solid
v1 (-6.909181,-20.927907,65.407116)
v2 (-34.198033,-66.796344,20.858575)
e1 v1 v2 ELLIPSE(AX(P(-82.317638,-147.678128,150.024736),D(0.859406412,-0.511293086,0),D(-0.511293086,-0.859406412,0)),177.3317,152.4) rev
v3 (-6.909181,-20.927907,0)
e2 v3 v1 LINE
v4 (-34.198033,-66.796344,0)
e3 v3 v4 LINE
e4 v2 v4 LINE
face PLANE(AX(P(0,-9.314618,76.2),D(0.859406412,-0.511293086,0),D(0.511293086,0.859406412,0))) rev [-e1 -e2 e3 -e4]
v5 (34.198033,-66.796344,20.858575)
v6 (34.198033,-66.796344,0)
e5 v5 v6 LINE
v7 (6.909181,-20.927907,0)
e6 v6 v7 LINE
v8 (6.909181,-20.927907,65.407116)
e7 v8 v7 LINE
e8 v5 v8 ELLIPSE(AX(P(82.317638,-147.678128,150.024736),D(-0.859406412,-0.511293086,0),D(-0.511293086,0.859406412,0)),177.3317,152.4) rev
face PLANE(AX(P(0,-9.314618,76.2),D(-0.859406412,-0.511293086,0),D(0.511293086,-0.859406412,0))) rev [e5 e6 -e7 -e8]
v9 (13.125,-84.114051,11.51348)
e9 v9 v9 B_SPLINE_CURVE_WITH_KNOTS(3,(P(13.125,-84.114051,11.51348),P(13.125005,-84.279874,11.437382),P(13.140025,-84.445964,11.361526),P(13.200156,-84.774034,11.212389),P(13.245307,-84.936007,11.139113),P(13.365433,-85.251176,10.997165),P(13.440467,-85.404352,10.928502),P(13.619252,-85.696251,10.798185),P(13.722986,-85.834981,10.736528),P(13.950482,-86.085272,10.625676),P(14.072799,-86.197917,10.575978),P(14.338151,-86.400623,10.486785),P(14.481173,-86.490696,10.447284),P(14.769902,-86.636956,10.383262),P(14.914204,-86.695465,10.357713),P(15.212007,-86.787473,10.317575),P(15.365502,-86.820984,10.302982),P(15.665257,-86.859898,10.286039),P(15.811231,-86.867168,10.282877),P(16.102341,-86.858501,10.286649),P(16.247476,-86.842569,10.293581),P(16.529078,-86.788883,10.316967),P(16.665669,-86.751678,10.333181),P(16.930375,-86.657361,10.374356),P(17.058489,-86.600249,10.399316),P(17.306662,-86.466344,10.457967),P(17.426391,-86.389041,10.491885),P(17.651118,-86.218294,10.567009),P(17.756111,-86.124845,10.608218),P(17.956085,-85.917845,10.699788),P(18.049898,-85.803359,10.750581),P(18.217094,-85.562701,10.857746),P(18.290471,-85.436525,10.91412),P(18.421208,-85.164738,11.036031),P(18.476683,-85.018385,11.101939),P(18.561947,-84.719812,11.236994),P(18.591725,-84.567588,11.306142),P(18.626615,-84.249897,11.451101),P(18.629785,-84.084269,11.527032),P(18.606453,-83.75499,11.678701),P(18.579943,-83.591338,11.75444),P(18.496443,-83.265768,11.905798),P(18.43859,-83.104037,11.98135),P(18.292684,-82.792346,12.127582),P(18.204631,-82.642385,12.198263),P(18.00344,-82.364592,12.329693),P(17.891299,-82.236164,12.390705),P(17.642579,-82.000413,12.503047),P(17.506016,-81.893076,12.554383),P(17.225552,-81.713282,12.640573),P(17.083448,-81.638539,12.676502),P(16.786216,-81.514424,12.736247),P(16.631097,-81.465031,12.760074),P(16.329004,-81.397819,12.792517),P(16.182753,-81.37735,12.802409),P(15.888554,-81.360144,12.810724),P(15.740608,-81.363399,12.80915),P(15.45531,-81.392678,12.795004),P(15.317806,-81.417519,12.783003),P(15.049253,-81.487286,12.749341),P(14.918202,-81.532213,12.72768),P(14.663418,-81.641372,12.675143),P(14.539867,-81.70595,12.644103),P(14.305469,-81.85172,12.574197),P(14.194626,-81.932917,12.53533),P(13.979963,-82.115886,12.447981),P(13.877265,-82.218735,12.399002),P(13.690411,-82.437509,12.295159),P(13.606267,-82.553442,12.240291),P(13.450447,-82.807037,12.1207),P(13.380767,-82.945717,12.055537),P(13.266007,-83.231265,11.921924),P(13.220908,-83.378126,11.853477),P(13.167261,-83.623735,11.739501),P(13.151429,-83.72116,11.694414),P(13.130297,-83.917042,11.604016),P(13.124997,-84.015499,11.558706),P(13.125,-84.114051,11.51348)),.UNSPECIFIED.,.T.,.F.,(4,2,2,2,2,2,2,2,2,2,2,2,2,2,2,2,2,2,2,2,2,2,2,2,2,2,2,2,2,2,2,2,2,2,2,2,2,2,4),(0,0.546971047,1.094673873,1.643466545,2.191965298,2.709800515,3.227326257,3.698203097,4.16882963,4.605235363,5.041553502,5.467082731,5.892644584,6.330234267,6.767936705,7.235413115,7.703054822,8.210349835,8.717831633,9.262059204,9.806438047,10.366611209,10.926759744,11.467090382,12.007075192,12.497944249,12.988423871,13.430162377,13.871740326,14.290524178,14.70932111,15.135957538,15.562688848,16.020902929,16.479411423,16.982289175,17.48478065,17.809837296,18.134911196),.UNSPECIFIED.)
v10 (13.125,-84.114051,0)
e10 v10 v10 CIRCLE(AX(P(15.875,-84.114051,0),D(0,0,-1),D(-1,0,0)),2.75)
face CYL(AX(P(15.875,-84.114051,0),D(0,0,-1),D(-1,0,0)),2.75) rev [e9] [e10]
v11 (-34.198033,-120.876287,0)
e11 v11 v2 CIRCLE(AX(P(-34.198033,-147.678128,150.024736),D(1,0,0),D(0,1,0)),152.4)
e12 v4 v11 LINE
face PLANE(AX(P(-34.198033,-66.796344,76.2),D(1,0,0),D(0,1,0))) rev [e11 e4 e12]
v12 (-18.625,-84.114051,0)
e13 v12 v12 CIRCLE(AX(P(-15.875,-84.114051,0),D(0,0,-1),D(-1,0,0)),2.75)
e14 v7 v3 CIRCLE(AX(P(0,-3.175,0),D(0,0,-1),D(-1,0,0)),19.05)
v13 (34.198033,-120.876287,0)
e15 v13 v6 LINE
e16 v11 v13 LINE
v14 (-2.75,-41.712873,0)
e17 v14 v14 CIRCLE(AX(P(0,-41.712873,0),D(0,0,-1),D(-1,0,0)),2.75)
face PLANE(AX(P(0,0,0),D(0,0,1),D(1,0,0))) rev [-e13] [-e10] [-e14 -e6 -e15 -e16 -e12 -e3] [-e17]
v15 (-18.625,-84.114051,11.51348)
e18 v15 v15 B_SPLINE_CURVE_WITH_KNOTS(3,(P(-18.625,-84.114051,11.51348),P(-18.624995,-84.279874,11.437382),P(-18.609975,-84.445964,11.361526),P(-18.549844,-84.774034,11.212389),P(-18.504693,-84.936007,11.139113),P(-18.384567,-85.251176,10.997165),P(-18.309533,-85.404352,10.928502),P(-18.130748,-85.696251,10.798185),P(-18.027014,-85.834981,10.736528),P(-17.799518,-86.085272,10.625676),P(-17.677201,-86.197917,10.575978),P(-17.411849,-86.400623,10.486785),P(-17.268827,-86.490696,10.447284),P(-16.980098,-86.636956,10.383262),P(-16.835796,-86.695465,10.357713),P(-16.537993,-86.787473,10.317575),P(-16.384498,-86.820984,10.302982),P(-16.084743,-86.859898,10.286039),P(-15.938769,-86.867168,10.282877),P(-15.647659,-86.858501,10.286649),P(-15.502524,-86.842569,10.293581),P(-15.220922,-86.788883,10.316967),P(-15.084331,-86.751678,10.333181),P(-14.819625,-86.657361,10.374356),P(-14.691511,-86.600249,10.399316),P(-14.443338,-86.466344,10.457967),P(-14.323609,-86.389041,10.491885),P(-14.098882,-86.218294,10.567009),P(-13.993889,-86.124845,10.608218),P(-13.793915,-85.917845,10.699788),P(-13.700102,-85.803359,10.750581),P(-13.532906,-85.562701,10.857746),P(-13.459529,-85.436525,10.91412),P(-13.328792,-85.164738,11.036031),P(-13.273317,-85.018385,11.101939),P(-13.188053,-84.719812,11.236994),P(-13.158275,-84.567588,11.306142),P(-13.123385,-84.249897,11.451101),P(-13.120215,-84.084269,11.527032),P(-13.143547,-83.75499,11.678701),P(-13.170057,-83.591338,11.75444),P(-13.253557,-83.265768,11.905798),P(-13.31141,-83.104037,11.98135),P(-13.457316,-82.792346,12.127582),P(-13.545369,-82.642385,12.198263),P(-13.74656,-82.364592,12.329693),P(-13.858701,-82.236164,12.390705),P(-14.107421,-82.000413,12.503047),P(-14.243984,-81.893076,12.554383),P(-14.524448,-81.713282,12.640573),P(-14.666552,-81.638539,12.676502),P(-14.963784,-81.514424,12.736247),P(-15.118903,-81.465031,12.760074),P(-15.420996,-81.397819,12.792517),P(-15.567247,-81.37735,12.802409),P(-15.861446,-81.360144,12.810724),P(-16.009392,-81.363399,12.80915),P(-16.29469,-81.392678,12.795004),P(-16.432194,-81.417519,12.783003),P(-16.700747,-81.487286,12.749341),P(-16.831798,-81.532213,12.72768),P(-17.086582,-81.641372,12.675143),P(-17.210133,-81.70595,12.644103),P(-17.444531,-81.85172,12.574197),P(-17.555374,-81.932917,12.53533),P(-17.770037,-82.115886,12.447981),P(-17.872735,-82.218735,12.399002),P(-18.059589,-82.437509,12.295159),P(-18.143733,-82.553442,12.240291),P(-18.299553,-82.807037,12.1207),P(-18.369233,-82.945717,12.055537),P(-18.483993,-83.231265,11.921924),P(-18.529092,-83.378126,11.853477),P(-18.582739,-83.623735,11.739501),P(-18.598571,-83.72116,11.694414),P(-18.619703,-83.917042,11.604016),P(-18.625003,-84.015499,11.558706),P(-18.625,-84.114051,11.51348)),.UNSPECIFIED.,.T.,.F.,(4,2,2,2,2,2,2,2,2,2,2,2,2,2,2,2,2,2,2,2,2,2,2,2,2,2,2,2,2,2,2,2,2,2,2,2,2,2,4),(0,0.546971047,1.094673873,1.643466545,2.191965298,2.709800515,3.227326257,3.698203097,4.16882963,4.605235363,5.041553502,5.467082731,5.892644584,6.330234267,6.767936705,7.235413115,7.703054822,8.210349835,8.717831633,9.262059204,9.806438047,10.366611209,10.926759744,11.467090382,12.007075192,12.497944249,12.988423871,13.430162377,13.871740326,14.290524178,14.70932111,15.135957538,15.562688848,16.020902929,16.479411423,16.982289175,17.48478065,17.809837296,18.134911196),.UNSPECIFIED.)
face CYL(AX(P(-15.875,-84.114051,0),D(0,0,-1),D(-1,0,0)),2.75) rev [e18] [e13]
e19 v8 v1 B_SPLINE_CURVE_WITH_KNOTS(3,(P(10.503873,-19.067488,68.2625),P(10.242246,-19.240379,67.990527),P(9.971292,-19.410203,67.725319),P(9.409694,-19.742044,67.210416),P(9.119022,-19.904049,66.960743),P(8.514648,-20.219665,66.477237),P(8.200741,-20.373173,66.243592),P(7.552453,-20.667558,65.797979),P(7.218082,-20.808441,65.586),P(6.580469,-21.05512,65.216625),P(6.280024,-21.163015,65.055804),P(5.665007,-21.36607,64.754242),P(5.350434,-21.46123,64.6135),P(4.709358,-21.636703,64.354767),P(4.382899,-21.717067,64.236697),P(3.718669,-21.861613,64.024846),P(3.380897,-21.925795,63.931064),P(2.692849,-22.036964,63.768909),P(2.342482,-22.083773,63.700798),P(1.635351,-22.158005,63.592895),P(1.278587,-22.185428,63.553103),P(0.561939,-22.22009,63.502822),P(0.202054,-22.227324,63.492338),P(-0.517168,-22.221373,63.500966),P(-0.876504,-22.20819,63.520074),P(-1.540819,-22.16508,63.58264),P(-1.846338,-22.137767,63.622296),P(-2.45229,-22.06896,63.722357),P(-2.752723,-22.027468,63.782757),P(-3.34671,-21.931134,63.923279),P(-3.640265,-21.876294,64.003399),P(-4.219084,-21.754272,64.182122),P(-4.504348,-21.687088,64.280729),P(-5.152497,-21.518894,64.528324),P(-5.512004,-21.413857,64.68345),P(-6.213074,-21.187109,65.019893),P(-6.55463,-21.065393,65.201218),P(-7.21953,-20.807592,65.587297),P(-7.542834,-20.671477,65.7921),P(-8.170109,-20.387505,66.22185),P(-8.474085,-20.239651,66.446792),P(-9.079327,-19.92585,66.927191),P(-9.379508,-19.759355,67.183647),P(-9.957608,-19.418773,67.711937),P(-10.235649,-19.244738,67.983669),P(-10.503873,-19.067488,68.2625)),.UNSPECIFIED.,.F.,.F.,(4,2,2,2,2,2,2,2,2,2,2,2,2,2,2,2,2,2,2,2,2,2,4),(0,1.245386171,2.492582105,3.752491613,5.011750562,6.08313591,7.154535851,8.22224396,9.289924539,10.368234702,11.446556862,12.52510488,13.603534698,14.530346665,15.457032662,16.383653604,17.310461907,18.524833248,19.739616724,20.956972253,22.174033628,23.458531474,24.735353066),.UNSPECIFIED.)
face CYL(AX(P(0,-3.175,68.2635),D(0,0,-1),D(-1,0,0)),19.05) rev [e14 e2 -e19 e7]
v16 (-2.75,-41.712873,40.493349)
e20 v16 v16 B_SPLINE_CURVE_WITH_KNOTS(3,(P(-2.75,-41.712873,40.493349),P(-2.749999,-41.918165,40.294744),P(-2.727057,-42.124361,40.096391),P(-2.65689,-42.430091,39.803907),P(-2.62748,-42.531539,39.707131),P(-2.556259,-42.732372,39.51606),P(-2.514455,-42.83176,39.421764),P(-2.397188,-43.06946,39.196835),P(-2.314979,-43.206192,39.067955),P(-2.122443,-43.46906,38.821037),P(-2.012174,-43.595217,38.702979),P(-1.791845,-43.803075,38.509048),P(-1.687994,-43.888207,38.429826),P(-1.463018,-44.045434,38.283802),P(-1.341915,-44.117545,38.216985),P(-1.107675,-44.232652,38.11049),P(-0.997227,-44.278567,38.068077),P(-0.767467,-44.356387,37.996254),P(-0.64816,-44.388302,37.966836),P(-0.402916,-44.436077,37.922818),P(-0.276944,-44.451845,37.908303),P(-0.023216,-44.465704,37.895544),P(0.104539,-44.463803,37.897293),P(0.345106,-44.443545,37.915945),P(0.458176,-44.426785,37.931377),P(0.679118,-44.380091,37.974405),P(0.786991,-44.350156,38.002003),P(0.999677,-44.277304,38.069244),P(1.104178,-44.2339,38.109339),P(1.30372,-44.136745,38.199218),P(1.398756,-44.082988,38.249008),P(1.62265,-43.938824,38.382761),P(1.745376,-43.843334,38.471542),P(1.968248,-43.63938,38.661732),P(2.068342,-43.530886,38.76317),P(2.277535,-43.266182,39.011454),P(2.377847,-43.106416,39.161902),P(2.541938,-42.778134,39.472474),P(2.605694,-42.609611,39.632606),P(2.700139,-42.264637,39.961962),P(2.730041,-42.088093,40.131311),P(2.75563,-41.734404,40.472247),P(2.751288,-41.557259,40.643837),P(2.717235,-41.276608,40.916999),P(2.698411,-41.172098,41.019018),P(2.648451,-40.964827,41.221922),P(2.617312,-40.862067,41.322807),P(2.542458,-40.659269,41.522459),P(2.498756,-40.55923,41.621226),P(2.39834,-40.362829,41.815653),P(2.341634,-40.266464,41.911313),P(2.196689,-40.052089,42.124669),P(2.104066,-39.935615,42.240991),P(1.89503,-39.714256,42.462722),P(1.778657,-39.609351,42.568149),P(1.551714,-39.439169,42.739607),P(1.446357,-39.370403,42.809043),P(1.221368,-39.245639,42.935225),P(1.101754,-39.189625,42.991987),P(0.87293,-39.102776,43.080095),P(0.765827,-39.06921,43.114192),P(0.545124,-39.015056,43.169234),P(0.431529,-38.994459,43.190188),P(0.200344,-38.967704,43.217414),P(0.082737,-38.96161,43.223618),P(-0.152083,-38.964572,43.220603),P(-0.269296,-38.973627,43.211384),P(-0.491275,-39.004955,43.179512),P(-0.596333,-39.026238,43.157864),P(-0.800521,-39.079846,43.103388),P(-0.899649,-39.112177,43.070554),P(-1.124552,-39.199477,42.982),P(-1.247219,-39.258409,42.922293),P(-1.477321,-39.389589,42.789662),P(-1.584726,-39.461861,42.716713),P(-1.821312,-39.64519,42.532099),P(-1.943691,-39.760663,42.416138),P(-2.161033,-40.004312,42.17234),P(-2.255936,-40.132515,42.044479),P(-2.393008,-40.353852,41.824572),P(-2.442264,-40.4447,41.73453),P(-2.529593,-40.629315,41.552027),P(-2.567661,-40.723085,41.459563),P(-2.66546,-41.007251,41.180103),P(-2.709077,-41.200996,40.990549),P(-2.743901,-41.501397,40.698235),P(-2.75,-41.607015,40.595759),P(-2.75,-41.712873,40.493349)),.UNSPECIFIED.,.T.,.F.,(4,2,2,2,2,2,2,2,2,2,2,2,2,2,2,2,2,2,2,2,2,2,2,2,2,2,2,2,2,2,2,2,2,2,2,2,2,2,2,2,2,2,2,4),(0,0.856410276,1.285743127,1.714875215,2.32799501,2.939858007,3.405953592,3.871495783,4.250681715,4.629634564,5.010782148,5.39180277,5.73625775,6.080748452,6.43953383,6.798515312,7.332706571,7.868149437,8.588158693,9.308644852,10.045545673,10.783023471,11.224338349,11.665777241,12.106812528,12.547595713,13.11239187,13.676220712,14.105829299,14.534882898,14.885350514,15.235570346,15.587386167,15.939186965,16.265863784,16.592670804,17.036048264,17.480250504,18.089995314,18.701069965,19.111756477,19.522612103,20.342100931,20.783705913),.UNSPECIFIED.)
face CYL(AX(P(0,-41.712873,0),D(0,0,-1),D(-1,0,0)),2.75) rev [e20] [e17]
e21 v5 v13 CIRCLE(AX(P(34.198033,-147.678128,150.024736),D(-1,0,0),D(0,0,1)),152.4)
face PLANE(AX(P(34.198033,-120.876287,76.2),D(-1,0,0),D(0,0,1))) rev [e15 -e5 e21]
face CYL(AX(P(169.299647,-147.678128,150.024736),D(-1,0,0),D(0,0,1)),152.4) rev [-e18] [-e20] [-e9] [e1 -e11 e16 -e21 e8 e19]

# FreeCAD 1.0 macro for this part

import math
import FreeCAD as App
import Part
import Sketcher

V = App.Vector
Q = App.Units.Quantity

doc = App.newDocument("Part")
body = doc.addObject("PartDesign::Body", "Body")

sketch1 = body.newObject("Sketcher::SketchObject", "Sketch")
sketch1.AttachmentSupport = (doc.getObject("XY_Plane"), [""])
sketch1.MapMode = "FlatFace"
sketch1.addGeometry([
    Part.LineSegment(V(34, -121, 0), V(34, -67, 0)),
    Part.LineSegment(V(34, -67, 0), V(0, -9, 0)),
    Part.LineSegment(V(0, -9, 0), V(-34, -67, 0)),
    Part.LineSegment(V(-34, -67, 0), V(-34, -121, 0)),
    Part.LineSegment(V(-34, -121, 0), V(34, -121, 0)),
], False)
sketch1.addConstraint([
    Sketcher.Constraint("Coincident", 0, 2, 1, 1),
    Sketcher.Constraint("Coincident", 1, 2, 2, 1),
    Sketcher.Constraint("Coincident", 2, 2, 3, 1),
    Sketcher.Constraint("Coincident", 3, 2, 4, 1),
    Sketcher.Constraint("Coincident", 4, 2, 0, 1),
    Sketcher.Constraint("Vertical", 0),
    Sketcher.Constraint("Vertical", 3),
    Sketcher.Constraint("Horizontal", 4),
    Sketcher.Constraint("Symmetric", 0, 2, 2, 2, -2),
    Sketcher.Constraint("PointOnObject", 1, 2, -2),
    Sketcher.Constraint("Angle", 1, Q("120.75 deg")),
    Sketcher.Constraint("Distance", 1, Q("66.885382 mm")),
    Sketcher.Constraint("DistanceY", 0, 1, 0, 2, Q("54.079943 mm")),
    Sketcher.Constraint("DistanceY", 1, 2, -1, 1, Q("9.314618 mm")),
])
pad1 = body.newObject("PartDesign::Pad", "Pad")
pad1.Profile = sketch1
pad1.Length = Q("3 in")

sketch2 = body.newObject("Sketcher::SketchObject", "Sketch001")
sketch2.AttachmentSupport = (doc.getObject("YZ_Plane"), [""])
sketch2.MapMode = "FlatFace"
sketch2.AttachmentOffset = App.Placement(V(0, 0, -34.198033), App.Rotation())
sketch2.addGeometry([
    Part.LineSegment(V(-121, 76, 0), V(-121, 0, 0)),
    Part.ArcOfCircle(Part.Circle(V(-148, 150, 0), V(0, 0, 1), 152), math.radians(-80), math.radians(-32)),
    Part.LineSegment(V(-19, 68, 0), V(-9, 68, 0)),
    Part.LineSegment(V(-9, 68, 0), V(-9, 76, 0)),
    Part.LineSegment(V(-9, 76, 0), V(-121, 76, 0)),
], False)
sketch2.addConstraint([
    Sketcher.Constraint("Coincident", 0, 2, 1, 1),
    Sketcher.Constraint("Coincident", 1, 2, 2, 1),
    Sketcher.Constraint("Coincident", 2, 2, 3, 1),
    Sketcher.Constraint("Coincident", 3, 2, 4, 1),
    Sketcher.Constraint("Coincident", 4, 2, 0, 1),
    Sketcher.Constraint("Vertical", 0),
    Sketcher.Constraint("Horizontal", 2),
    Sketcher.Constraint("Vertical", 3),
    Sketcher.Constraint("Horizontal", 4),
    Sketcher.Constraint("PointOnObject", 0, 2, -1),
    Sketcher.Constraint("Radius", 1, Q("6 in")),
    Sketcher.Constraint("DistanceY", 0, 2, 0, 1, Q("3 in")),
    Sketcher.Constraint("DistanceY", 3, 1, 3, 2, Q("0.3125 in")),
    Sketcher.Constraint("DistanceX", 2, 1, 2, 2, Q("9.752869 mm")),
    Sketcher.Constraint("DistanceX", 4, 2, 4, 1, Q("111.561669 mm")),
    Sketcher.Constraint("DistanceX", 2, 2, -1, 1, Q("9.314618 mm")),
])
pocket1 = body.newObject("PartDesign::Pocket", "Pocket")
pocket1.Profile = sketch2
pocket1.Length = 68.396066
pocket1.Reversed = True

sketch3 = body.newObject("Sketcher::SketchObject", "Sketch002")
sketch3.AttachmentSupport = (doc.getObject("XY_Plane"), [""])
sketch3.MapMode = "FlatFace"
sketch3.addGeometry([
    Part.Circle(V(15.9, -84.1, 0), V(0, 0, 1), 2.8),
    Part.Circle(V(-15.9, -84.1, 0), V(0, 0, 1), 2.8),
    Part.Circle(V(0, -41.7, 0), V(0, 0, 1), 2.8),
], False)
sketch3.addConstraint([
    Sketcher.Constraint("Equal", 0, 1),
    Sketcher.Constraint("Equal", 1, 2),
    Sketcher.Constraint("Symmetric", 0, 3, 1, 3, -2),
    Sketcher.Constraint("PointOnObject", 2, 3, -2),
    Sketcher.Constraint("Diameter", 0, Q("5.5 mm")),
    Sketcher.Constraint("DistanceX", 1, 3, 0, 3, Q("1.25 in")),
    Sketcher.Constraint("DistanceY", 0, 3, -1, 1, Q("84.114051 mm")),
    Sketcher.Constraint("DistanceY", 2, 3, -1, 1, Q("41.712873 mm")),
])
doc.recompute()
hole = body.newObject("PartDesign::Hole", "Hole")
hole.Profile = sketch3
hole.ThreadType = "None"
hole.Diameter = 5.5
hole.DepthType = "ThroughAll"
hole.Reversed = True

sketch4 = body.newObject("Sketcher::SketchObject", "Sketch003")
sketch4.AttachmentSupport = (doc.getObject("XY_Plane"), [""])
sketch4.MapMode = "FlatFace"
sketch4.addGeometry(Part.Circle(V(0, -3, 0), V(0, 0, 1), 19), False)
sketch4.addConstraint([
    Sketcher.Constraint("PointOnObject", 0, 3, -2),
    Sketcher.Constraint("Diameter", 0, Q("1.5 in")),
    Sketcher.Constraint("DistanceY", 0, 3, -1, 1, Q("0.125 in")),
])
pocket2 = body.newObject("PartDesign::Pocket", "Pocket001")
pocket2.Profile = sketch4
pocket2.Length = Q("2.6875 in")
pocket2.Reversed = True

doc.recompute()
